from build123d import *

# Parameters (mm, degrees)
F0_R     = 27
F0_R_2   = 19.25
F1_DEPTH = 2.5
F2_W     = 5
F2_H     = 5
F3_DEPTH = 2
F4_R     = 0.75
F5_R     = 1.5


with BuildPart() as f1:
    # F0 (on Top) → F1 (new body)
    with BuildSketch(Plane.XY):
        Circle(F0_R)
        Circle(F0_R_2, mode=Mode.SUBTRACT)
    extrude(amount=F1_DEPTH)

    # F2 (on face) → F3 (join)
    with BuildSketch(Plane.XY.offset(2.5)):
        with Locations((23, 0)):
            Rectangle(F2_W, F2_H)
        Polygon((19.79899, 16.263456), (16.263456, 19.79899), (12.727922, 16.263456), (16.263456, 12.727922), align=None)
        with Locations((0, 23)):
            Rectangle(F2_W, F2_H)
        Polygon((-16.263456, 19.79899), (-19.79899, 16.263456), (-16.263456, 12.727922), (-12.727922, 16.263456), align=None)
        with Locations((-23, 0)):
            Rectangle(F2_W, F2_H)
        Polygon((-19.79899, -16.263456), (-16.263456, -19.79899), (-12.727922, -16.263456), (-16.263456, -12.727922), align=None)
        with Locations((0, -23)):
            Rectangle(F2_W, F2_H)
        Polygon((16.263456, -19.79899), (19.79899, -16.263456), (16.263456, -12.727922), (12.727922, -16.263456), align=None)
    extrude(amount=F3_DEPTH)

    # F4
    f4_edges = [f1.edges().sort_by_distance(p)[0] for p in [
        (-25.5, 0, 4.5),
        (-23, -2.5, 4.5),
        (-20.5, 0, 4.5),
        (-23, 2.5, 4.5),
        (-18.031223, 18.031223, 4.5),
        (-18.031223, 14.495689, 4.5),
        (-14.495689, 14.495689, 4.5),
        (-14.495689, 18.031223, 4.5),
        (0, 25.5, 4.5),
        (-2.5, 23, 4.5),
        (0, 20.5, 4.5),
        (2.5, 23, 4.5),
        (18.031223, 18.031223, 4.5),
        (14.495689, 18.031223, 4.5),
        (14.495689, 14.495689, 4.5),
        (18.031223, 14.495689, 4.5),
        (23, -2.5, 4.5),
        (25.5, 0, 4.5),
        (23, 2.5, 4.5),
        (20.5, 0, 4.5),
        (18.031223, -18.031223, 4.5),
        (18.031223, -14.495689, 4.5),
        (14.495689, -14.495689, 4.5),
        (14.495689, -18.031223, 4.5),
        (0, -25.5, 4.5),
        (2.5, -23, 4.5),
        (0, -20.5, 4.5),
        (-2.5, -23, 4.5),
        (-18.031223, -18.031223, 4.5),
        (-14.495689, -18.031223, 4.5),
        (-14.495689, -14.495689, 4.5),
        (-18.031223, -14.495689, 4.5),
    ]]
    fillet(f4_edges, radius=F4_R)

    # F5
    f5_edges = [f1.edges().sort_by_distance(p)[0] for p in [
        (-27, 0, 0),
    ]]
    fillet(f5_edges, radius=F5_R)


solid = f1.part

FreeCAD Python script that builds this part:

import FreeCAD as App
import Part
import Sketcher
from FreeCAD import Vector
Q = App.Units.Quantity


def edges_at(feature, points):
    """Names of the edges that pass closest to the given points."""
    edges = feature.Shape.Edges
    near = lambda p: min(range(len(edges)), key=lambda i: edges[i].distToShape(Part.Vertex(*p))[0])
    return sorted({f"Edge{near(p) + 1}" for p in points})

doc = App.newDocument("Part")
params = doc.addObject("Spreadsheet::Sheet", "Params")
for row, (alias, value) in enumerate([
    ("sketch1_diameter", "54 mm"),
    ("sketch1_diameter2", "38.5 mm"),
    ("pad1_length", "2.5 mm"),
    ("sketch2_width", "5 mm"),
    ("sketch2_length", "5 mm"),
    ("pad2_length", "2 mm"),
    ("fillet_radius", "0.75 mm"),
    ("fillet2_radius", "1.5 mm"),
], start=1):
    params.set(f"A{row}", alias)
    params.set(f"B{row}", "=" + value)
    params.setAlias(f"B{row}", alias)

body = doc.addObject("PartDesign::Body", "Body")

sketch1 = body.newObject("Sketcher::SketchObject", "Sketch")
sketch1.AttachmentSupport = (doc.getObject("XY_Plane"), [""])
sketch1.MapMode = "FlatFace"
sketch1.addGeometry([
    Part.Circle(Vector(0, 0, 0), Vector(0, 0, 1), 27),
    Part.Circle(Vector(0, 0, 0), Vector(0, 0, 1), 19.25),
], False)
sketch1.addConstraint([
    Sketcher.Constraint("Coincident", 0, 3, -1, 1),
    Sketcher.Constraint("Coincident", 1, 3, -1, 1),
    Sketcher.Constraint("Diameter", 0, Q("54 mm")),
    Sketcher.Constraint("Diameter", 1, Q("38.5 mm")),
])
sketch1.setExpression("Constraints[2]", "Params.sketch1_diameter")
sketch1.setExpression("Constraints[3]", "Params.sketch1_diameter2")
pad1 = body.newObject("PartDesign::Pad", "Pad")
pad1.Profile = sketch1
pad1.setExpression("Length", "Params.pad1_length")

sketch2 = body.newObject("Sketcher::SketchObject", "Sketch001")
sketch2.AttachmentSupport = (doc.getObject("XY_Plane"), [""])
sketch2.MapMode = "FlatFace"
sketch2.AttachmentOffset = App.Placement(Vector(0, 0, 2.5), App.Rotation())
sketch2.addGeometry([
    Part.LineSegment(Vector(20.5, 2.5, 0), Vector(20.5, -2.5, 0)),
    Part.LineSegment(Vector(20.5, -2.5, 0), Vector(25.5, -2.5, 0)),
    Part.LineSegment(Vector(25.5, -2.5, 0), Vector(25.5, 2.5, 0)),
    Part.LineSegment(Vector(25.5, 2.5, 0), Vector(20.5, 2.5, 0)),
    Part.LineSegment(Vector(19.79899, 16.263456, 0), Vector(16.263456, 19.79899, 0)),
    Part.LineSegment(Vector(16.263456, 19.79899, 0), Vector(12.727922, 16.263456, 0)),
    Part.LineSegment(Vector(12.727922, 16.263456, 0), Vector(16.263456, 12.727922, 0)),
    Part.LineSegment(Vector(16.263456, 12.727922, 0), Vector(19.79899, 16.263456, 0)),
    Part.LineSegment(Vector(-2.5, 25.5, 0), Vector(-2.5, 20.5, 0)),
    Part.LineSegment(Vector(-2.5, 20.5, 0), Vector(2.5, 20.5, 0)),
    Part.LineSegment(Vector(2.5, 20.5, 0), Vector(2.5, 25.5, 0)),
    Part.LineSegment(Vector(2.5, 25.5, 0), Vector(-2.5, 25.5, 0)),
    Part.LineSegment(Vector(-16.263456, 19.79899, 0), Vector(-19.79899, 16.263456, 0)),
    Part.LineSegment(Vector(-19.79899, 16.263456, 0), Vector(-16.263456, 12.727922, 0)),
    Part.LineSegment(Vector(-16.263456, 12.727922, 0), Vector(-12.727922, 16.263456, 0)),
    Part.LineSegment(Vector(-12.727922, 16.263456, 0), Vector(-16.263456, 19.79899, 0)),
    Part.LineSegment(Vector(-25.5, 2.5, 0), Vector(-25.5, -2.5, 0)),
    Part.LineSegment(Vector(-25.5, -2.5, 0), Vector(-20.5, -2.5, 0)),
    Part.LineSegment(Vector(-20.5, -2.5, 0), Vector(-20.5, 2.5, 0)),
    Part.LineSegment(Vector(-20.5, 2.5, 0), Vector(-25.5, 2.5, 0)),
    Part.LineSegment(Vector(-19.79899, -16.263456, 0), Vector(-16.263456, -19.79899, 0)),
    Part.LineSegment(Vector(-16.263456, -19.79899, 0), Vector(-12.727922, -16.263456, 0)),
    Part.LineSegment(Vector(-12.727922, -16.263456, 0), Vector(-16.263456, -12.727922, 0)),
    Part.LineSegment(Vector(-16.263456, -12.727922, 0), Vector(-19.79899, -16.263456, 0)),
    Part.LineSegment(Vector(-2.5, -20.5, 0), Vector(-2.5, -25.5, 0)),
    Part.LineSegment(Vector(-2.5, -25.5, 0), Vector(2.5, -25.5, 0)),
    Part.LineSegment(Vector(2.5, -25.5, 0), Vector(2.5, -20.5, 0)),
    Part.LineSegment(Vector(2.5, -20.5, 0), Vector(-2.5, -20.5, 0)),
    Part.LineSegment(Vector(16.263456, -19.79899, 0), Vector(19.79899, -16.263456, 0)),
    Part.LineSegment(Vector(19.79899, -16.263456, 0), Vector(16.263456, -12.727922, 0)),
    Part.LineSegment(Vector(16.263456, -12.727922, 0), Vector(12.727922, -16.263456, 0)),
    Part.LineSegment(Vector(12.727922, -16.263456, 0), Vector(16.263456, -19.79899, 0)),
], False)
sketch2.addConstraint([
    Sketcher.Constraint("Coincident", 0, 2, 1, 1),
    Sketcher.Constraint("Coincident", 1, 2, 2, 1),
    Sketcher.Constraint("Coincident", 2, 2, 3, 1),
    Sketcher.Constraint("Coincident", 3, 2, 0, 1),
    Sketcher.Constraint("Coincident", 4, 2, 5, 1),
    Sketcher.Constraint("Coincident", 5, 2, 6, 1),
    Sketcher.Constraint("Coincident", 6, 2, 7, 1),
    Sketcher.Constraint("Coincident", 7, 2, 4, 1),
    Sketcher.Constraint("Coincident", 8, 2, 9, 1),
    Sketcher.Constraint("Coincident", 9, 2, 10, 1),
    Sketcher.Constraint("Coincident", 10, 2, 11, 1),
    Sketcher.Constraint("Coincident", 11, 2, 8, 1),
    Sketcher.Constraint("Coincident", 12, 2, 13, 1),
    Sketcher.Constraint("Coincident", 13, 2, 14, 1),
    Sketcher.Constraint("Coincident", 14, 2, 15, 1),
    Sketcher.Constraint("Coincident", 15, 2, 12, 1),
    Sketcher.Constraint("Coincident", 16, 2, 17, 1),
    Sketcher.Constraint("Coincident", 17, 2, 18, 1),
    Sketcher.Constraint("Coincident", 18, 2, 19, 1),
    Sketcher.Constraint("Coincident", 19, 2, 16, 1),
    Sketcher.Constraint("Coincident", 20, 2, 21, 1),
    Sketcher.Constraint("Coincident", 21, 2, 22, 1),
    Sketcher.Constraint("Coincident", 22, 2, 23, 1),
    Sketcher.Constraint("Coincident", 23, 2, 20, 1),
    Sketcher.Constraint("Coincident", 24, 2, 25, 1),
    Sketcher.Constraint("Coincident", 25, 2, 26, 1),
    Sketcher.Constraint("Coincident", 26, 2, 27, 1),
    Sketcher.Constraint("Coincident", 27, 2, 24, 1),
    Sketcher.Constraint("Coincident", 28, 2, 29, 1),
    Sketcher.Constraint("Coincident", 29, 2, 30, 1),
    Sketcher.Constraint("Coincident", 30, 2, 31, 1),
    Sketcher.Constraint("Coincident", 31, 2, 28, 1),
    Sketcher.Constraint("Vertical", 0),
    Sketcher.Constraint("Horizontal", 1),
    Sketcher.Constraint("Vertical", 2),
    Sketcher.Constraint("Horizontal", 3),
    Sketcher.Constraint("Vertical", 8),
    Sketcher.Constraint("Horizontal", 9),
    Sketcher.Constraint("Vertical", 10),
    Sketcher.Constraint("Horizontal", 11),
    Sketcher.Constraint("Vertical", 16),
    Sketcher.Constraint("Horizontal", 17),
    Sketcher.Constraint("Vertical", 18),
    Sketcher.Constraint("Horizontal", 19),
    Sketcher.Constraint("Vertical", 24),
    Sketcher.Constraint("Horizontal", 25),
    Sketcher.Constraint("Vertical", 26),
    Sketcher.Constraint("Horizontal", 27),
    Sketcher.Constraint("Symmetric", 2, 2, 16, 2, -1, 1),
    Sketcher.Constraint("Symmetric", 0, 2, 18, 2, -1, 1),
    Sketcher.Constraint("Symmetric", 4, 2, 20, 2, -1, 1),
    Sketcher.Constraint("Symmetric", 5, 2, 21, 2, -1, 1),
    Sketcher.Constraint("Symmetric", 6, 2, 22, 2, -1, 1),
    Sketcher.Constraint("Symmetric", 7, 2, 23, 2, -1, 1),
    Sketcher.Constraint("Symmetric", 10, 2, 24, 2, -1, 1),
    Sketcher.Constraint("Symmetric", 8, 2, 26, 2, -1, 1),
    Sketcher.Constraint("Symmetric", 12, 2, 28, 2, -1, 1),
    Sketcher.Constraint("Symmetric", 13, 2, 29, 2, -1, 1),
    Sketcher.Constraint("Symmetric", 14, 2, 30, 2, -1, 1),
    Sketcher.Constraint("Symmetric", 15, 2, 31, 2, -1, 1),
    Sketcher.Constraint("Symmetric", 7, 2, 12, 2, -2),
    Sketcher.Constraint("Symmetric", 6, 2, 13, 2, -2),
    Sketcher.Constraint("Symmetric", 5, 2, 14, 2, -2),
    Sketcher.Constraint("Symmetric", 4, 2, 15, 2, -2),
    Sketcher.Constraint("Perpendicular", 4, 5),
    Sketcher.Constraint("Perpendicular", 5, 6),
    Sketcher.Constraint("Perpendicular", 6, 7),
    Sketcher.Constraint("Parallel", 7, 12),
    Sketcher.Constraint("Horizontal", 5, 2, 7, 2),
    Sketcher.Constraint("Horizontal", 1, 2, 16, 2),
    Sketcher.Constraint("Vertical", 11, 2, 24, 2),
    Sketcher.Constraint("Equal", 3, 9),
    Sketcher.Constraint("Equal", 27, 0),
    Sketcher.Constraint("Equal", 2, 8),
    Sketcher.Constraint("DistanceX", 1, 1, 1, 2, Q("5 mm")),
    Sketcher.Constraint("Distance", 4, Q("5 mm")),
    Sketcher.Constraint("DistanceX", 8, 2, 3, 2, Q("23 mm")),
    Sketcher.Constraint("DistanceY", 3, 2, 8, 2, Q("18 mm")),
    Sketcher.Constraint("DistanceY", -1, 1, 4, 2, Q("19.79899 mm")),
    Sketcher.Constraint("DistanceX", -1, 1, 7, 2, Q("19.79899 mm")),
])
sketch2.setExpression("Constraints[74]", "Params.sketch2_width")
sketch2.setExpression("Constraints[75]", "Params.sketch2_length")
pad2 = body.newObject("PartDesign::Pad", "Pad001")
pad2.Profile = sketch2
pad2.setExpression("Length", "Params.pad2_length")
doc.recompute()

fillet = body.newObject("PartDesign::Fillet", "Fillet")
fillet.Base = (pad2, edges_at(pad2, [
    (-25.5, 0, 4.5),
    (-23, -2.5, 4.5),
    (-20.5, 0, 4.5),
    (-23, 2.5, 4.5),
    (-18.031, 18.031, 4.5),
    (-18.031, 14.496, 4.5),
    (-14.496, 14.496, 4.5),
    (-14.496, 18.031, 4.5),
    (0, 25.5, 4.5),
    (-2.5, 23, 4.5),
    (0, 20.5, 4.5),
    (2.5, 23, 4.5),
    (18.031, 18.031, 4.5),
    (14.496, 18.031, 4.5),
    (14.496, 14.496, 4.5),
    (18.031, 14.496, 4.5),
    (23, -2.5, 4.5),
    (25.5, 0, 4.5),
    (23, 2.5, 4.5),
    (20.5, 0, 4.5),
    (18.031, -18.031, 4.5),
    (18.031, -14.496, 4.5),
    (14.496, -14.496, 4.5),
    (14.496, -18.031, 4.5),
    (0, -25.5, 4.5),
    (2.5, -23, 4.5),
    (0, -20.5, 4.5),
    (-2.5, -23, 4.5),
    (-18.031, -18.031, 4.5),
    (-14.496, -18.031, 4.5),
    (-14.496, -14.496, 4.5),
    (-18.031, -14.496, 4.5),
]))
fillet.setExpression("Radius", "Params.fillet_radius")
doc.recompute()

fillet2 = body.newObject("PartDesign::Fillet", "Fillet001")
fillet2.Base = (fillet, edges_at(fillet, [(-27, 0, 0)]))
fillet2.setExpression("Radius", "Params.fillet2_radius")

doc.recompute()
